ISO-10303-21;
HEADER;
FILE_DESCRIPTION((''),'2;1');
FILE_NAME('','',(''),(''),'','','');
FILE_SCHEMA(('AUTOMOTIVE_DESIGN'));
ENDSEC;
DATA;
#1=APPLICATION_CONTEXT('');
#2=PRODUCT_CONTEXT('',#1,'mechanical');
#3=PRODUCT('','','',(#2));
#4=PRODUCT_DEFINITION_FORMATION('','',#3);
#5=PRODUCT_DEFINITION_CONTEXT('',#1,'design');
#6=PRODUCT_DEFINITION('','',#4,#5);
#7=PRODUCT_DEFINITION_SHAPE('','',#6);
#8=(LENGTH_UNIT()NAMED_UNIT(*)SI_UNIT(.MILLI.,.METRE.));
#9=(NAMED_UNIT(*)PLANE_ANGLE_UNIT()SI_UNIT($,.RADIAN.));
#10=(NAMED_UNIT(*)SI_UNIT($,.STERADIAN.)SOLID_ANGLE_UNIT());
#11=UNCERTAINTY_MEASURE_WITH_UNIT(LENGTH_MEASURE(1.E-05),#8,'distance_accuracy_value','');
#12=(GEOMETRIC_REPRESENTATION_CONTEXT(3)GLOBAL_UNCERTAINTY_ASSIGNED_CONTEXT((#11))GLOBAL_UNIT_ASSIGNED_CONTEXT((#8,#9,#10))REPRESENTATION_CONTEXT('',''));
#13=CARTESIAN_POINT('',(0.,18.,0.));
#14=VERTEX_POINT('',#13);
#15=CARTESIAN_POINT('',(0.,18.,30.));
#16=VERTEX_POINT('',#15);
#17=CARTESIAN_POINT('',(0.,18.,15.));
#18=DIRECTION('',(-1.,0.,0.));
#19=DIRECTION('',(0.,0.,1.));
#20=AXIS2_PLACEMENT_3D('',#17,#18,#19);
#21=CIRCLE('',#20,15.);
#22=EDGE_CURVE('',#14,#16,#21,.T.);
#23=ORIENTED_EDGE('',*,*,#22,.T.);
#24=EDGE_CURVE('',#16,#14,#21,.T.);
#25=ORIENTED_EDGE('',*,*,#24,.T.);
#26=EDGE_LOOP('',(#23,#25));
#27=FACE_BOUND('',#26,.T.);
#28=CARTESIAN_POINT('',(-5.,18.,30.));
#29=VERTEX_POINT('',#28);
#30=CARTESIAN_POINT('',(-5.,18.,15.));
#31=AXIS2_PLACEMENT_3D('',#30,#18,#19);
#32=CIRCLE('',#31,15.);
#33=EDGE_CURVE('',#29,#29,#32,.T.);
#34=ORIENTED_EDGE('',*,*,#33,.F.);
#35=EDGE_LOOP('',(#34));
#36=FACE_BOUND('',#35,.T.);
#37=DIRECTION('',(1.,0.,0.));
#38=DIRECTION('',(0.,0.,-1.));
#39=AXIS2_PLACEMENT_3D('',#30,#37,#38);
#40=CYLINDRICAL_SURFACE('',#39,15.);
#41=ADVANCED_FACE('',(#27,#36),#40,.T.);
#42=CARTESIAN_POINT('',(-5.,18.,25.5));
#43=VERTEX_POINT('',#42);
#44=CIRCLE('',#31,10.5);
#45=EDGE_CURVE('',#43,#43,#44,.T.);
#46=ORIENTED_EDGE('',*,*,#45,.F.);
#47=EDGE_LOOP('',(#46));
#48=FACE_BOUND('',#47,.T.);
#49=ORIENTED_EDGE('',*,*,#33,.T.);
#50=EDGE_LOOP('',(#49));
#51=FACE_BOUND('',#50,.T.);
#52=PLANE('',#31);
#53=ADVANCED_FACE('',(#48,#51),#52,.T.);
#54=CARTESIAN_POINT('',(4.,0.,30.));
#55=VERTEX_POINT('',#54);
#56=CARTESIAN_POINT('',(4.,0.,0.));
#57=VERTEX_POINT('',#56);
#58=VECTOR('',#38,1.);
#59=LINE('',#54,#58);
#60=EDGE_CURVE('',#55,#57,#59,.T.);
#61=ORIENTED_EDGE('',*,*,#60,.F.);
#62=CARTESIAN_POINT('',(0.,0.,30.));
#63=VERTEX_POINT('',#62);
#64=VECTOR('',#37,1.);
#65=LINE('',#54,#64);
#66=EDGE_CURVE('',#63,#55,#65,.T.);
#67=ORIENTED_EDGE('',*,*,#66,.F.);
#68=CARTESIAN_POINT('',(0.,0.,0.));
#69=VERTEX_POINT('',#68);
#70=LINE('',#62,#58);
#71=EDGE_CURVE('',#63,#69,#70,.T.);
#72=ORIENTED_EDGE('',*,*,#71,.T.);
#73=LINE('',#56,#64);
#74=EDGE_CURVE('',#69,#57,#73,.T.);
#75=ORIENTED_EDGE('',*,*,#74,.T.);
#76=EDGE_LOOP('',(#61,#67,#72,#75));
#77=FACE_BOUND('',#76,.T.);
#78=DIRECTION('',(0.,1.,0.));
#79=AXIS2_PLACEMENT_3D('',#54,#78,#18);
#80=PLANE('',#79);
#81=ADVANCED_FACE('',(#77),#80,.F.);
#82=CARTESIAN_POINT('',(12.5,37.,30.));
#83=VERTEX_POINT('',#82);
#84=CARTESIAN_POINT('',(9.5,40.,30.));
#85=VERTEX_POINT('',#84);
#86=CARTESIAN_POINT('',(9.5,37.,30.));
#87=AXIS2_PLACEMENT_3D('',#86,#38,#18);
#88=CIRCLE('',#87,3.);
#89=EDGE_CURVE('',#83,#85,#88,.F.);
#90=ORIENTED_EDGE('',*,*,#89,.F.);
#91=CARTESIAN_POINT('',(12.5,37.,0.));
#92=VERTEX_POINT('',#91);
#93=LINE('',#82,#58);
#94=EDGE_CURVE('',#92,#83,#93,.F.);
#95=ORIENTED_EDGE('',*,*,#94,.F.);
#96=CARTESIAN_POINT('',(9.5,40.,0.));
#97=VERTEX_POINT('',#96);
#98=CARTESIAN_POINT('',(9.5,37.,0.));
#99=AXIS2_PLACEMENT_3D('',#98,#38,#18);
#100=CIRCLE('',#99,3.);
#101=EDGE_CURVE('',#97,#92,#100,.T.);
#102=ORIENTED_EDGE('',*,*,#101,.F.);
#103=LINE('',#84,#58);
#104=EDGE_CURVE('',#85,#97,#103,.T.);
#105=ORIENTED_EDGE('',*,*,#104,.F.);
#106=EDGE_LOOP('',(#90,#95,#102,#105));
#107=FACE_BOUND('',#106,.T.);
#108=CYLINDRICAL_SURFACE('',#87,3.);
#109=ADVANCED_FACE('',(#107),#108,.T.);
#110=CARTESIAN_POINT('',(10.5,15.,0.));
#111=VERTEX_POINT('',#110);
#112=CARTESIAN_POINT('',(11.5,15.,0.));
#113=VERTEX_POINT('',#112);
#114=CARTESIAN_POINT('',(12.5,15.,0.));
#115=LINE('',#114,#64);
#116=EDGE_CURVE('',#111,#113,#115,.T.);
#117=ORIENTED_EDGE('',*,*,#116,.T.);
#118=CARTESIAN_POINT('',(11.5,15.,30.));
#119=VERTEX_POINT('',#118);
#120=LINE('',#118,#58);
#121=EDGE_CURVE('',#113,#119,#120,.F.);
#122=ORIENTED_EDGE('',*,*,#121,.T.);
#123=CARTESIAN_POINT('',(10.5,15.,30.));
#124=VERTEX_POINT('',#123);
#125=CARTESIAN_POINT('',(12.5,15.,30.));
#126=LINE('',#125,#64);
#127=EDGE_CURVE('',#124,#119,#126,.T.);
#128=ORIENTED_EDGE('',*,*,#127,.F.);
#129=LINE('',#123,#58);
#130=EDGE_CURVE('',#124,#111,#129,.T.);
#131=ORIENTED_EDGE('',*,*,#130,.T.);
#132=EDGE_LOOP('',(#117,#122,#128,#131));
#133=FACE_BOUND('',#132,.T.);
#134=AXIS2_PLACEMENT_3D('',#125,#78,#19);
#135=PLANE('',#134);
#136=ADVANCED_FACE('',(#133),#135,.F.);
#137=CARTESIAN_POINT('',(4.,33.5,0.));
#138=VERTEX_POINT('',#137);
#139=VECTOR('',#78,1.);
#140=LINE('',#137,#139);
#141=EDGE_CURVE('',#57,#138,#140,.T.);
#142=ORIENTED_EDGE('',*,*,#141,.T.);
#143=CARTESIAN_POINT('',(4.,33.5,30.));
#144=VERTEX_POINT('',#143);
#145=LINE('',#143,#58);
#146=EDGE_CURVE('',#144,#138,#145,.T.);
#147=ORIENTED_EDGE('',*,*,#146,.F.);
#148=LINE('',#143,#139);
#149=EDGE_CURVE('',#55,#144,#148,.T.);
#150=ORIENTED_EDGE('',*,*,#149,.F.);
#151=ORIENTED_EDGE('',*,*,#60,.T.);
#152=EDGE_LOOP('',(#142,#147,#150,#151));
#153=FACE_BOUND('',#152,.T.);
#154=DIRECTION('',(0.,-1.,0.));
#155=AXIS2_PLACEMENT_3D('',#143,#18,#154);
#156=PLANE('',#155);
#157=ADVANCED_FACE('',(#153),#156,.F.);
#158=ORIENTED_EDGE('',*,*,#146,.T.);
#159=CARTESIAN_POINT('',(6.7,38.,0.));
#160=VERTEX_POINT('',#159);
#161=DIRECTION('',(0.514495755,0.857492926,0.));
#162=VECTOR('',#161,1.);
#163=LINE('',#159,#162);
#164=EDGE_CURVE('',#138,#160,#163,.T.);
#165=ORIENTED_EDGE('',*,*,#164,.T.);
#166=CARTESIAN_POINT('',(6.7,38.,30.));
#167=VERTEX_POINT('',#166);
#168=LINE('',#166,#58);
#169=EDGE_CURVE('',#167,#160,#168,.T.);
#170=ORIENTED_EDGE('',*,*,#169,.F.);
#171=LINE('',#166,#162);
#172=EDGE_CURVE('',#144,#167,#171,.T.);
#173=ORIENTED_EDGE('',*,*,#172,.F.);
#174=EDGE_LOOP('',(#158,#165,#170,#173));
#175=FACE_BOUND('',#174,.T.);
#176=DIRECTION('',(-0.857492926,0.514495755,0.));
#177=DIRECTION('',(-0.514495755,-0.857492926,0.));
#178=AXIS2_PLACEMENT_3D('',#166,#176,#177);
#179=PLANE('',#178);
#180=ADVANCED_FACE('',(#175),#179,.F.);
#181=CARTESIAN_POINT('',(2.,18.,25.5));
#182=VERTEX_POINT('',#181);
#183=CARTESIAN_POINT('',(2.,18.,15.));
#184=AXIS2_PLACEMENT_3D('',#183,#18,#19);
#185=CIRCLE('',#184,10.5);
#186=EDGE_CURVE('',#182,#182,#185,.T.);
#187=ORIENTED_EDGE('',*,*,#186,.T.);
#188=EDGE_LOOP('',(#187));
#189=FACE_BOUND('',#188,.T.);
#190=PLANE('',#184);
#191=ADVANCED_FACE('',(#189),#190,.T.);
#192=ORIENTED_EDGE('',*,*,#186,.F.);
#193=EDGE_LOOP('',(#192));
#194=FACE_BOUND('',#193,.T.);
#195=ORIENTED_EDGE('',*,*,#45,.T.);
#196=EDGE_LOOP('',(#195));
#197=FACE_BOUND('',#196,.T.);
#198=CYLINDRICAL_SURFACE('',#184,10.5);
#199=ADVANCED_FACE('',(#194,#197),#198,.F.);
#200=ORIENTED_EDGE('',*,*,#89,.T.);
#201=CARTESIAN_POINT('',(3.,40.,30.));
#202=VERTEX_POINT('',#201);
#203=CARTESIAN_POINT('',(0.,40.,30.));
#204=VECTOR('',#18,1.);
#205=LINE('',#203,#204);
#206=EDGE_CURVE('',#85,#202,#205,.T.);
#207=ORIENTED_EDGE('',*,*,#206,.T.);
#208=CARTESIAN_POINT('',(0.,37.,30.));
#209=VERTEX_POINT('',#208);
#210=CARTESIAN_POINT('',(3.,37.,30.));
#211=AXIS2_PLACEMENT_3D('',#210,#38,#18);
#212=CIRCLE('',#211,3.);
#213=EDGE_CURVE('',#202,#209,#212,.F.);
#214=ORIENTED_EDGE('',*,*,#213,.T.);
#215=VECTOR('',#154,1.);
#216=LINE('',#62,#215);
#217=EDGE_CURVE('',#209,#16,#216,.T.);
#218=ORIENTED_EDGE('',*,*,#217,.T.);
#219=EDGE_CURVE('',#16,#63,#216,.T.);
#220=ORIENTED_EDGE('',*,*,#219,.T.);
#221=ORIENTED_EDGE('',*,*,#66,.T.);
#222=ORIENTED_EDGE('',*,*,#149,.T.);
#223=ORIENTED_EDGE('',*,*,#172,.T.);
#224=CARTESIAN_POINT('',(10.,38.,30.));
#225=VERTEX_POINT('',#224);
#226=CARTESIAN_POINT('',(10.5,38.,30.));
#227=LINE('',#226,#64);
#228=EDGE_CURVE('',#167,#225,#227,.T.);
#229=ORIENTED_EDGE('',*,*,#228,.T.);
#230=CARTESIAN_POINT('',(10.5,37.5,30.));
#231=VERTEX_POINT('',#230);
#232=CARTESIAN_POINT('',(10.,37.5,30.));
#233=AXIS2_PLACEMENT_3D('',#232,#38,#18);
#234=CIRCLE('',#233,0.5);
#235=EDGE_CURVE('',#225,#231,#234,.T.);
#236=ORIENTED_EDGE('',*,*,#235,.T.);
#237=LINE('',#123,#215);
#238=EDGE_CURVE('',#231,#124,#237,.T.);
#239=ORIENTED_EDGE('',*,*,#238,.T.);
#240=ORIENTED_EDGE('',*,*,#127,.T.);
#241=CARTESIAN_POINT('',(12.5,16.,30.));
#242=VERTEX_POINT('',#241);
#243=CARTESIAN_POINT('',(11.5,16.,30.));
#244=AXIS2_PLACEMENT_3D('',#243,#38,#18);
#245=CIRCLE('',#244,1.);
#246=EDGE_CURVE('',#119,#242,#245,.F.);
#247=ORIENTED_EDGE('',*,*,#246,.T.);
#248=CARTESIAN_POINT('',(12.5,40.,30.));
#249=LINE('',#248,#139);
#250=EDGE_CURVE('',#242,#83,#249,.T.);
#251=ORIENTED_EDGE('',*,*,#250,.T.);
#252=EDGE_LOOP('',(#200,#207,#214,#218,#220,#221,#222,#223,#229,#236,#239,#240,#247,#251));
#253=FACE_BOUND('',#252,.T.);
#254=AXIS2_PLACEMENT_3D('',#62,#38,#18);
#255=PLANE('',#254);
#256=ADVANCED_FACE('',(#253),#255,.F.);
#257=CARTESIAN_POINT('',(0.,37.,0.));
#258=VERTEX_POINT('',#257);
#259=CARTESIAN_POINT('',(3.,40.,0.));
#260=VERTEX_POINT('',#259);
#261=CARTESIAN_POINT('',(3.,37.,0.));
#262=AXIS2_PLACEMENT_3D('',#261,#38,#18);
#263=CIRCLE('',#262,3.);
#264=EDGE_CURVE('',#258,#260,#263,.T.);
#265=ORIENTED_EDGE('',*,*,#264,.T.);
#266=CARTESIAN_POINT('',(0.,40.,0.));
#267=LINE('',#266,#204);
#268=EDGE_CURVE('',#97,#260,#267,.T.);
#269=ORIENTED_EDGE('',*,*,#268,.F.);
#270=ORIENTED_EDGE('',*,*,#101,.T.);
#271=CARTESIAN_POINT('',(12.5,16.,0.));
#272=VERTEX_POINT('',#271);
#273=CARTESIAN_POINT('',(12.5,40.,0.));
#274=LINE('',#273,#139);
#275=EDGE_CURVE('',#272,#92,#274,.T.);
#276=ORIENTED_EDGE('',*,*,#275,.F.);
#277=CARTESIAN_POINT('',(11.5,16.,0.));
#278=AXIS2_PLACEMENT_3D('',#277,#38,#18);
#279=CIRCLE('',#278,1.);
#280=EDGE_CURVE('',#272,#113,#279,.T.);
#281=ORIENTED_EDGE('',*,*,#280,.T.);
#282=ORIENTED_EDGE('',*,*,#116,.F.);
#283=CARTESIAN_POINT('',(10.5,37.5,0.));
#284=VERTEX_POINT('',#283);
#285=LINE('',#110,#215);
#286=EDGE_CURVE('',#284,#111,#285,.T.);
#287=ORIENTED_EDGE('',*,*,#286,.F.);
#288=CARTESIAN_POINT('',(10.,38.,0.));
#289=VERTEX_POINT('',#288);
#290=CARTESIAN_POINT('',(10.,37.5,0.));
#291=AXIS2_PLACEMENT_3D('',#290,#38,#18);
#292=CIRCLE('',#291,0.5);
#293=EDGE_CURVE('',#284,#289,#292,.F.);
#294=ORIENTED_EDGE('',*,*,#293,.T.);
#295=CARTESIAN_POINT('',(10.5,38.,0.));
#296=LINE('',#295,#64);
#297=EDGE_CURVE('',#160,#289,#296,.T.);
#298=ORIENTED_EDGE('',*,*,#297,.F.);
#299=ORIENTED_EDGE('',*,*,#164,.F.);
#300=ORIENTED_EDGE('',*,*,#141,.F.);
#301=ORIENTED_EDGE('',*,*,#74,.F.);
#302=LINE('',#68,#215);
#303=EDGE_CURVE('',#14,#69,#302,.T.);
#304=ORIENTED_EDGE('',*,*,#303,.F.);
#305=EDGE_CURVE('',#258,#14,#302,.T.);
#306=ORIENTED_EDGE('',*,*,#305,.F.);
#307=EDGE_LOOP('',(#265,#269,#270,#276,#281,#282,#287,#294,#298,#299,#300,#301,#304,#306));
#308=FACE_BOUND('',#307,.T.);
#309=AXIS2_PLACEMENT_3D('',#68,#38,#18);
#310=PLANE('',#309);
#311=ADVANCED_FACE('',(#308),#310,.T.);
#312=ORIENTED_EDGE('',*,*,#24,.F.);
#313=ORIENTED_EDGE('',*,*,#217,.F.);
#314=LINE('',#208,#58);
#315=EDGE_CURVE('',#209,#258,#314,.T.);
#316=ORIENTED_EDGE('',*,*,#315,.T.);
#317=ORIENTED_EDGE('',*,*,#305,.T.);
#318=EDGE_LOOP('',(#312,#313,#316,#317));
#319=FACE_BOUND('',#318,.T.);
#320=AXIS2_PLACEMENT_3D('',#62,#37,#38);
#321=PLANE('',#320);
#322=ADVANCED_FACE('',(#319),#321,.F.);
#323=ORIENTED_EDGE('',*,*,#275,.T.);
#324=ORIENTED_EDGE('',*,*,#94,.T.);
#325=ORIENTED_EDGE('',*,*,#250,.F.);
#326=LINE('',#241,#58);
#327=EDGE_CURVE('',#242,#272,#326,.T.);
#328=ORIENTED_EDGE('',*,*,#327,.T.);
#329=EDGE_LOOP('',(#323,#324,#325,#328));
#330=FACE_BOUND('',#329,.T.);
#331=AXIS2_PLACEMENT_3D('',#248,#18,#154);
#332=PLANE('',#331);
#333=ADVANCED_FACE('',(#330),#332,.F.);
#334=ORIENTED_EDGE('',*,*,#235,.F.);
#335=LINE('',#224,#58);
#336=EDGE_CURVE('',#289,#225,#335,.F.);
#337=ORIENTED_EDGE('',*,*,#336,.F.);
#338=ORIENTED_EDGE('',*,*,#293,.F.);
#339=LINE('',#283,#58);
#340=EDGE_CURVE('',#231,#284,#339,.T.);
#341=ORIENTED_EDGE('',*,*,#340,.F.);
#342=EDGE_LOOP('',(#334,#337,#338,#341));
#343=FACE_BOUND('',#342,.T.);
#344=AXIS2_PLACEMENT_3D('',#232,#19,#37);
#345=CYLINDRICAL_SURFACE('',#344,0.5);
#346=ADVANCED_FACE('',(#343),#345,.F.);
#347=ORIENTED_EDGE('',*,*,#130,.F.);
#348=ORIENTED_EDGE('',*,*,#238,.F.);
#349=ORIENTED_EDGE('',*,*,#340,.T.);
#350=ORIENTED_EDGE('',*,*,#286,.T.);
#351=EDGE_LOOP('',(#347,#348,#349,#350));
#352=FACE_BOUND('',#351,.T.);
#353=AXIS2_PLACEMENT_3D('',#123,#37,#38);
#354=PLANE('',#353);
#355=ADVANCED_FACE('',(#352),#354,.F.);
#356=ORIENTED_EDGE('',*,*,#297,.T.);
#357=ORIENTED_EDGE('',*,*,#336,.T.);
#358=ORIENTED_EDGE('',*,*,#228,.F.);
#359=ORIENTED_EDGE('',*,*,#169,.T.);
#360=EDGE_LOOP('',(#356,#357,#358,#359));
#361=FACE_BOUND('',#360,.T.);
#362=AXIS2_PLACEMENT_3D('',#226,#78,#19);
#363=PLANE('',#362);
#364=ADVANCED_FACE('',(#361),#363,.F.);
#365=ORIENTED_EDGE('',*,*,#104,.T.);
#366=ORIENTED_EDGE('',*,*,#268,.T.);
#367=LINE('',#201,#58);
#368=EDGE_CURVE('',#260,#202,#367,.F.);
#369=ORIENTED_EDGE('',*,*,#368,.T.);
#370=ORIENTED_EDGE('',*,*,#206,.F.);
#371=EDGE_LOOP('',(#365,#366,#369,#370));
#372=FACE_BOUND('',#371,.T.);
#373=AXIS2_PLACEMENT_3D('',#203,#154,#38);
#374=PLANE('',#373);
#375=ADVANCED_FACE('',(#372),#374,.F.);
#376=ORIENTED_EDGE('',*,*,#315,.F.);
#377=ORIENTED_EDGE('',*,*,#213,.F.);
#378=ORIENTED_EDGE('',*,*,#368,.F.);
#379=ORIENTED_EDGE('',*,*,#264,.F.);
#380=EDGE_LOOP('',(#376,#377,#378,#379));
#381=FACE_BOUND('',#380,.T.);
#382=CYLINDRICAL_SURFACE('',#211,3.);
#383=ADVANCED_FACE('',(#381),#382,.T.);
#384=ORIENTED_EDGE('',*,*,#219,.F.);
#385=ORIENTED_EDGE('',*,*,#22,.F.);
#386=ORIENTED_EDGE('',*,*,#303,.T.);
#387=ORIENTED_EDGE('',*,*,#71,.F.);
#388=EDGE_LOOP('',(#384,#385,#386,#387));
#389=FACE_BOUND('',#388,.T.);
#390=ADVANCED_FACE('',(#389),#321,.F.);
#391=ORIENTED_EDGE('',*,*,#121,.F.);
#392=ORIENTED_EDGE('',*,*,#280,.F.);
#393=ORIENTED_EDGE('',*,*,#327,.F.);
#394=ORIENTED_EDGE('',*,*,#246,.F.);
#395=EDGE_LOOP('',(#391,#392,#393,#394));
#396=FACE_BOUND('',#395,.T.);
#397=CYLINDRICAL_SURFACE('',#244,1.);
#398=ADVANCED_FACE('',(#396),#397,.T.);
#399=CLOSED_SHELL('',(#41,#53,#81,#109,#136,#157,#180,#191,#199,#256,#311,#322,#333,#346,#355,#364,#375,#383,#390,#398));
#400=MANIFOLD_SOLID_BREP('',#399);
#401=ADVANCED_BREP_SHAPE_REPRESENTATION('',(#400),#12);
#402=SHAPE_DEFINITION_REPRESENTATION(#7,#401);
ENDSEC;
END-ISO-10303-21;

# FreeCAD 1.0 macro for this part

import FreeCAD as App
import Part
import Sketcher

V = App.Vector
Q = App.Units.Quantity


def edges_at(feature, points):
    """Names of the edges that pass closest to the given points."""
    edges = feature.Shape.Edges
    near = lambda p: min(range(len(edges)), key=lambda i: edges[i].distToShape(Part.Vertex(*p))[0])
    return sorted({f"Edge{near(p) + 1}" for p in points})

doc = App.newDocument("Part")
body = doc.addObject("PartDesign::Body", "Body")

sketch1 = body.newObject("Sketcher::SketchObject", "Sketch")
sketch1.AttachmentSupport = (doc.getObject("XY_Plane"), [""])
sketch1.MapMode = "FlatFace"
sketch1.addGeometry(Part.LineSegment(V(0, 40, 0), V(0, 0, 0)), False)
sketch1.addGeometry(Part.LineSegment(V(0, 0, 0), V(4, 0, 0)), False)
sketch1.addGeometry(Part.LineSegment(V(4, 0, 0), V(4, 33.5, 0)), False)
sketch1.addGeometry(Part.LineSegment(V(4, 33.5, 0), V(6.7, 38, 0)), False)
sketch1.addGeometry(Part.LineSegment(V(6.7, 38, 0), V(10.5, 38, 0)), False)
sketch1.addGeometry(Part.LineSegment(V(10.5, 38, 0), V(10.5, 15, 0)), False)
sketch1.addGeometry(Part.LineSegment(V(10.5, 15, 0), V(12.5, 15, 0)), False)
sketch1.addGeometry(Part.LineSegment(V(12.5, 15, 0), V(12.5, 40, 0)), False)
sketch1.addGeometry(Part.LineSegment(V(12.5, 40, 0), V(0, 40, 0)), False)
sketch1.addConstraint(Sketcher.Constraint("Coincident", 0, 2, 1, 1))
sketch1.addConstraint(Sketcher.Constraint("Coincident", 1, 2, 2, 1))
sketch1.addConstraint(Sketcher.Constraint("Coincident", 2, 2, 3, 1))
sketch1.addConstraint(Sketcher.Constraint("Coincident", 3, 2, 4, 1))
sketch1.addConstraint(Sketcher.Constraint("Coincident", 4, 2, 5, 1))
sketch1.addConstraint(Sketcher.Constraint("Coincident", 5, 2, 6, 1))
sketch1.addConstraint(Sketcher.Constraint("Coincident", 6, 2, 7, 1))
sketch1.addConstraint(Sketcher.Constraint("Coincident", 7, 2, 8, 1))
sketch1.addConstraint(Sketcher.Constraint("Coincident", 8, 2, 0, 1))
sketch1.addConstraint(Sketcher.Constraint("Vertical", 0))
sketch1.addConstraint(Sketcher.Constraint("Horizontal", 1))
sketch1.addConstraint(Sketcher.Constraint("Vertical", 2))
sketch1.addConstraint(Sketcher.Constraint("Horizontal", 4))
sketch1.addConstraint(Sketcher.Constraint("Vertical", 5))
sketch1.addConstraint(Sketcher.Constraint("Horizontal", 6))
sketch1.addConstraint(Sketcher.Constraint("Vertical", 7))
sketch1.addConstraint(Sketcher.Constraint("Horizontal", 8))
sketch1.addConstraint(Sketcher.Constraint("Coincident", 0, 2, -1, 1))
sketch1.addConstraint(Sketcher.Constraint("DistanceX", 1, 1, 1, 2, Q("4 mm")))
sketch1.addConstraint(Sketcher.Constraint("DistanceX", 6, 1, 6, 2, Q("2 mm")))
sketch1.addConstraint(Sketcher.Constraint("DistanceY", 0, 2, 0, 1, Q("40 mm")))
sketch1.addConstraint(Sketcher.Constraint("DistanceY", 5, 2, 5, 1, Q("23 mm")))
sketch1.addConstraint(Sketcher.Constraint("DistanceY", 7, 1, 7, 2, Q("25 mm")))
sketch1.addConstraint(Sketcher.Constraint("DistanceX", 4, 1, 4, 2, Q("3.8 mm")))
sketch1.addConstraint(Sketcher.Constraint("DistanceX", 8, 2, 8, 1, Q("12.5 mm")))
sketch1.addConstraint(Sketcher.Constraint("DistanceY", 2, 1, 2, 2, Q("33.5 mm")))
pad1 = body.newObject("PartDesign::Pad", "Pad")
pad1.Profile = sketch1
pad1.Length = 30
doc.recompute()

fillet = body.newObject("PartDesign::Fillet", "Fillet")
fillet.Base = (pad1, edges_at(pad1, [(0, 40, 15), (12.5, 40, 15)]))
fillet.Radius = 3
doc.recompute()

fillet2 = body.newObject("PartDesign::Fillet", "Fillet001")
fillet2.Base = (fillet, edges_at(fillet, [(10.5, 38, 15)]))
fillet2.Radius = 0.5
doc.recompute()

fillet3 = body.newObject("PartDesign::Fillet", "Fillet002")
fillet3.Base = (fillet2, edges_at(fillet2, [(12.5, 15, 15)]))
fillet3.Radius = 1

sketch2 = body.newObject("Sketcher::SketchObject", "Sketch001")
sketch2.AttachmentSupport = (doc.getObject("YZ_Plane"), [""])
sketch2.MapMode = "FlatFace"
sketch2.addGeometry(Part.Circle(V(18, 15, 0), V(0, 0, 1), 15), False)
sketch2.addConstraint(Sketcher.Constraint("Diameter", 0, Q("30 mm")))
sketch2.addConstraint(Sketcher.Constraint("DistanceX", -1, 1, 0, 3, Q("18 mm")))
sketch2.addConstraint(Sketcher.Constraint("DistanceY", -1, 1, 0, 3, Q("15 mm")))
pad2 = body.newObject("PartDesign::Pad", "Pad001")
pad2.Profile = sketch2
pad2.Length = 5
pad2.Reversed = True

sketch3 = body.newObject("Sketcher::SketchObject", "Sketch002")
sketch3.AttachmentSupport = (doc.getObject("YZ_Plane"), [""])
sketch3.MapMode = "FlatFace"
sketch3.AttachmentOffset = App.Placement(V(0, 0, -5), App.Rotation())
sketch3.addGeometry(Part.Circle(V(18, 15, 0), V(0, 0, 1), 10.5), False)
sketch3.addConstraint(Sketcher.Constraint("Diameter", 0, Q("21 mm")))
sketch3.addConstraint(Sketcher.Constraint("DistanceX", -1, 1, 0, 3, Q("18 mm")))
sketch3.addConstraint(Sketcher.Constraint("DistanceY", -1, 1, 0, 3, Q("15 mm")))
pocket1 = body.newObject("PartDesign::Pocket", "Pocket")
pocket1.Profile = sketch3
pocket1.Length = 7
pocket1.Reversed = True

doc.recompute()
